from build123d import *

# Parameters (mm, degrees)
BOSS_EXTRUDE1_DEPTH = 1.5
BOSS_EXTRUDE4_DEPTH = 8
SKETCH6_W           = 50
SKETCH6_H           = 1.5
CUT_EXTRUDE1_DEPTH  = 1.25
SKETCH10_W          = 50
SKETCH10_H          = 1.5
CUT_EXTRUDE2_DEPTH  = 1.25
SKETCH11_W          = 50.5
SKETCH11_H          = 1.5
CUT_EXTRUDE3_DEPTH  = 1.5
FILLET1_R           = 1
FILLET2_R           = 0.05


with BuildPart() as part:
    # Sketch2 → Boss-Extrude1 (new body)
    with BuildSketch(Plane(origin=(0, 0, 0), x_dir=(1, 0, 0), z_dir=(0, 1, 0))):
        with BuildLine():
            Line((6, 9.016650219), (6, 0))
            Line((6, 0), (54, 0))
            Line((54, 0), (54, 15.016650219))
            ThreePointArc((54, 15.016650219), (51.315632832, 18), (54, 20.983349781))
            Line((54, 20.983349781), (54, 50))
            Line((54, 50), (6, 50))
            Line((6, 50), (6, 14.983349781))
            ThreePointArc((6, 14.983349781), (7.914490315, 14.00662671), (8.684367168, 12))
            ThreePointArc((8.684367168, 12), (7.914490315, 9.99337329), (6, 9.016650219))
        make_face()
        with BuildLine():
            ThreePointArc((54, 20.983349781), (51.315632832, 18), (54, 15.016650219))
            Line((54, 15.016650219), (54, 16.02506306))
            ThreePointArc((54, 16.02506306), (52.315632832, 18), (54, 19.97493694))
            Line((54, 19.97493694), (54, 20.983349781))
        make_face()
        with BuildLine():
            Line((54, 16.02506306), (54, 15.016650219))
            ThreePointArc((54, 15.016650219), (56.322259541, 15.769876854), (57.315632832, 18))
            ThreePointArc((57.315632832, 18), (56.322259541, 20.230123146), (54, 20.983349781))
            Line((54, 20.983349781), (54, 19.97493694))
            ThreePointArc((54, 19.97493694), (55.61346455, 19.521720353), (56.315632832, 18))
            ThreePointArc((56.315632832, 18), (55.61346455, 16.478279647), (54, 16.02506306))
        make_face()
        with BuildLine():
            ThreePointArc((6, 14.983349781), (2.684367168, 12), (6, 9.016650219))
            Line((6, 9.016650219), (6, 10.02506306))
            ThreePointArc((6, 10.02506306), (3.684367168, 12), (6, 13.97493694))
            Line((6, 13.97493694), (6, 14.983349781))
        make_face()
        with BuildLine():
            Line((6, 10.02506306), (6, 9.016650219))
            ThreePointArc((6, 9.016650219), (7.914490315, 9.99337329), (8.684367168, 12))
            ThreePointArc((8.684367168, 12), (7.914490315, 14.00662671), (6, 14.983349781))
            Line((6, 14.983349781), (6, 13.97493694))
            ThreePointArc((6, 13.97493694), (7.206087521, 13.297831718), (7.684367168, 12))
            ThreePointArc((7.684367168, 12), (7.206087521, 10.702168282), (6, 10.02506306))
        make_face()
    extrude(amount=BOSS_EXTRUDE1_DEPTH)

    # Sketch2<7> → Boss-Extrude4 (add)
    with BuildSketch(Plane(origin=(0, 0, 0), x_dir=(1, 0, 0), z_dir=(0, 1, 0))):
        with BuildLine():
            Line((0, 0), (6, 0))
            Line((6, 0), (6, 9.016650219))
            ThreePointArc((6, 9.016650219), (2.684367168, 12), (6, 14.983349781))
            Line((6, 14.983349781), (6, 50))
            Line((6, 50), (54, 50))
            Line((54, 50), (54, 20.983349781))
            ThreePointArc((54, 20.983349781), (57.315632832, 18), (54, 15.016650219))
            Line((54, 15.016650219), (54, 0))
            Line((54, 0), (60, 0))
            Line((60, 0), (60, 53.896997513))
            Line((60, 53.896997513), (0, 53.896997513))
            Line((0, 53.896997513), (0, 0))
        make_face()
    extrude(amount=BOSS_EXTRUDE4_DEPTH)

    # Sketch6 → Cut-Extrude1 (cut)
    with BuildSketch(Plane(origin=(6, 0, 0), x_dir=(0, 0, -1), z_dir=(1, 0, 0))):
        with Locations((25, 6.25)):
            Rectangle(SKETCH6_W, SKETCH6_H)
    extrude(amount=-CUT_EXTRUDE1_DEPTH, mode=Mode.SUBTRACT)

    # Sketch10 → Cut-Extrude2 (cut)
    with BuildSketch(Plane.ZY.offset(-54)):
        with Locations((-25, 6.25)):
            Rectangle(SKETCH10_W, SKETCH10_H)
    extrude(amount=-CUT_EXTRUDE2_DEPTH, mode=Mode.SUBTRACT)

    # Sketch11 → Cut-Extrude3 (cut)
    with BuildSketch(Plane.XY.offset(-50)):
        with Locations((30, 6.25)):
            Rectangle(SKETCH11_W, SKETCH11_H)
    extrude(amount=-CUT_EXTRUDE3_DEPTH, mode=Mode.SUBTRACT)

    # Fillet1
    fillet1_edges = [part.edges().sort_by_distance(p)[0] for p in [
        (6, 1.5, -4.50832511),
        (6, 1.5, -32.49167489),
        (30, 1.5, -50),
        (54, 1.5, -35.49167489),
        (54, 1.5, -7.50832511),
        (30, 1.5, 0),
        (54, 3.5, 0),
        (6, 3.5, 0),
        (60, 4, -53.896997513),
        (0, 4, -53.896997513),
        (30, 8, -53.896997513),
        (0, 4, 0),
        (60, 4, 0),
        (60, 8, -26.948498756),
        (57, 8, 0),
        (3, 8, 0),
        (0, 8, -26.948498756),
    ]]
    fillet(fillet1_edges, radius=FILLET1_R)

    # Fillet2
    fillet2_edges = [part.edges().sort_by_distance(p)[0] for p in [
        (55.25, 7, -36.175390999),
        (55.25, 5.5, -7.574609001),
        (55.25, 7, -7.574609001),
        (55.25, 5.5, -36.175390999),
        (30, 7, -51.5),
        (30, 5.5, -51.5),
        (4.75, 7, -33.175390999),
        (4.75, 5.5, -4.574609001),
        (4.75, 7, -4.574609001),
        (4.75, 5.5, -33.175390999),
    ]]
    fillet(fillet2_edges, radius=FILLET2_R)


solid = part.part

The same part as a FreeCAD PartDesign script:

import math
import FreeCAD as App
import Part
import Sketcher
from FreeCAD import Vector
Q = App.Units.Quantity


def edges_at(feature, points):
    """Names of the edges that pass closest to the given points."""
    edges = feature.Shape.Edges
    near = lambda p: min(range(len(edges)), key=lambda i: edges[i].distToShape(Part.Vertex(*p))[0])
    return sorted({f"Edge{near(p) + 1}" for p in points})


def add_polygon(sketch, points):
    """Adds a closed chain of lines whose ends are joined by coincident constraints."""
    first, n = sketch.GeometryCount, len(points)
    for a, b in zip(points, points[1:] + points[:1]):
        sketch.addGeometry(Part.LineSegment(App.Vector(*a, 0), App.Vector(*b, 0)), False)
    for i in range(n):
        sketch.addConstraint(Sketcher.Constraint("Coincident", first + i, 2, first + (i + 1) % n, 1))

doc = App.newDocument("Part")
body = doc.addObject("PartDesign::Body", "Body")

sketch1 = doc.addObject("Sketcher::SketchObject", "Sketch")
body.addObject(sketch1)
sketch1.AttachmentSupport = (doc.XZ_Plane, [""])
sketch1.MapMode = "FlatFace"
sketch1.addGeometry([
    Part.ArcOfCircle(Part.Circle(Vector(5.7, -12, 0), Vector(0, 0, 1), 3), math.radians(84), math.radians(276)),
    Part.LineSegment(Vector(6, -9, 0), Vector(6, 0, 0)),
    Part.LineSegment(Vector(6, 0, 0), Vector(54, 0, 0)),
    Part.LineSegment(Vector(54, 0, 0), Vector(54, -15, 0)),
    Part.ArcOfCircle(Part.Circle(Vector(54.3, -18, 0), Vector(0, 0, 1), 3), math.radians(0), math.radians(96)),
    Part.ArcOfCircle(Part.Circle(Vector(54.3, -18, 0), Vector(0, 0, 1), 3), math.radians(-96), math.radians(0)),
    Part.LineSegment(Vector(54, -21, 0), Vector(54, -50, 0)),
    Part.LineSegment(Vector(54, -50, 0), Vector(6, -50, 0)),
    Part.LineSegment(Vector(6, -50, 0), Vector(6, -15, 0)),
    Part.ArcOfCircle(Part.Circle(Vector(5.7, -12, 0), Vector(0, 0, 1), 2), math.radians(-81), math.radians(0)),
    Part.ArcOfCircle(Part.Circle(Vector(5.7, -12, 0), Vector(0, 0, 1), 2), math.radians(0), math.radians(81)),
    Part.ArcOfCircle(Part.Circle(Vector(5.7, -12, 0), Vector(0, 0, 1), 2), math.radians(81), math.radians(279)),
    Part.ArcOfCircle(Part.Circle(Vector(54.3, -18, 0), Vector(0, 0, 1), 2), math.radians(0), math.radians(99)),
    Part.ArcOfCircle(Part.Circle(Vector(54.3, -18, 0), Vector(0, 0, 1), 2), math.radians(99), math.radians(261)),
    Part.ArcOfCircle(Part.Circle(Vector(54.3, -18, 0), Vector(0, 0, 1), 2), math.radians(-99), math.radians(0)),
], False)
sketch1.addConstraint([
    Sketcher.Constraint("Coincident", 0, 1, 1, 1),
    Sketcher.Constraint("Coincident", 1, 2, 2, 1),
    Sketcher.Constraint("Coincident", 2, 2, 3, 1),
    Sketcher.Constraint("Coincident", 3, 2, 4, 2),
    Sketcher.Constraint("Tangent", 4, 1, 5, 2),
    Sketcher.Constraint("Coincident", 5, 1, 6, 1),
    Sketcher.Constraint("Coincident", 6, 2, 7, 1),
    Sketcher.Constraint("Coincident", 7, 2, 8, 1),
    Sketcher.Constraint("Coincident", 8, 2, 0, 2),
    Sketcher.Constraint("Tangent", 9, 2, 10, 1),
    Sketcher.Constraint("Tangent", 10, 2, 11, 1),
    Sketcher.Constraint("Tangent", 11, 2, 9, 1),
    Sketcher.Constraint("Tangent", 12, 2, 13, 1),
    Sketcher.Constraint("Tangent", 13, 2, 14, 1),
    Sketcher.Constraint("Tangent", 14, 2, 12, 1),
    Sketcher.Constraint("Vertical", 1),
    Sketcher.Constraint("Horizontal", 2),
    Sketcher.Constraint("Vertical", 3),
    Sketcher.Constraint("Vertical", 6),
    Sketcher.Constraint("Horizontal", 7),
    Sketcher.Constraint("Vertical", 8),
    Sketcher.Constraint("Coincident", 9, 3, 0, 3),
    Sketcher.Constraint("Coincident", 12, 3, 4, 3),
    Sketcher.Constraint("Equal", 0, 4),
    Sketcher.Constraint("Equal", 4, 5),
    Sketcher.Constraint("Equal", 11, 12),
    Sketcher.Constraint("PointOnObject", 1, 2, -1),
    Sketcher.Constraint("Horizontal", 14, 3, 4, 1),
    Sketcher.Constraint("Horizontal", 11, 3, 9, 2),
    Sketcher.Constraint("Horizontal", 4, 1, 14, 2),
    Sketcher.Constraint("Vertical", 3, 2, 5, 1),
    Sketcher.Constraint("Vertical", 1, 2, 7, 2),
    Sketcher.Constraint("Vertical", 8, 2, 10, 2),
    Sketcher.Constraint("Vertical", 10, 2, 11, 2),
    Sketcher.Constraint("Vertical", 6, 2, 12, 2),
    Sketcher.Constraint("Vertical", 12, 2, 13, 2),
    Sketcher.Constraint("Radius", 0, Q("3 mm")),
    Sketcher.Constraint("Radius", 9, Q("2 mm")),
    Sketcher.Constraint("DistanceX", 2, 1, 2, 2, Q("48 mm")),
    Sketcher.Constraint("DistanceY", 0, 3, -1, 1, Q("12 mm")),
    Sketcher.Constraint("DistanceY", 4, 3, -1, 1, Q("18 mm")),
    Sketcher.Constraint("DistanceX", -1, 1, 0, 1, Q("6 mm")),
    Sketcher.Constraint("DistanceY", 6, 2, -1, 1, Q("50 mm")),
    Sketcher.Constraint("DistanceY", 1, 1, 1, 2, Q("9.01665 mm")),
    Sketcher.Constraint("DistanceY", 3, 2, 3, 1, Q("15.01665 mm")),
])
pad1 = doc.addObject("PartDesign::Pad", "Pad")
body.addObject(pad1)
pad1.Profile = sketch1
pad1.Length = 1.5
pad1.Reversed = True

sketch2 = doc.addObject("Sketcher::SketchObject", "Sketch001")
body.addObject(sketch2)
sketch2.AttachmentSupport = (doc.XZ_Plane, [""])
sketch2.MapMode = "FlatFace"
sketch2.addGeometry([
    Part.LineSegment(Vector(0, 0, 0), Vector(6, 0, 0)),
    Part.LineSegment(Vector(6, 0, 0), Vector(6, -9, 0)),
    Part.ArcOfCircle(Part.Circle(Vector(5.7, -12, 0), Vector(0, 0, 1), 3), math.radians(84), math.radians(276)),
    Part.LineSegment(Vector(6, -15, 0), Vector(6, -50, 0)),
    Part.LineSegment(Vector(6, -50, 0), Vector(54, -50, 0)),
    Part.LineSegment(Vector(54, -50, 0), Vector(54, -21, 0)),
    Part.ArcOfCircle(Part.Circle(Vector(54.3, -18, 0), Vector(0, 0, 1), 3), math.radians(-96), math.radians(96)),
    Part.LineSegment(Vector(54, -15, 0), Vector(54, 0, 0)),
    Part.LineSegment(Vector(54, 0, 0), Vector(60, 0, 0)),
    Part.LineSegment(Vector(60, 0, 0), Vector(60, -53.9, 0)),
    Part.LineSegment(Vector(60, -53.9, 0), Vector(0, -53.9, 0)),
    Part.LineSegment(Vector(0, -53.9, 0), Vector(0, 0, 0)),
], False)
sketch2.addConstraint([
    Sketcher.Constraint("Coincident", 0, 2, 1, 1),
    Sketcher.Constraint("Coincident", 1, 2, 2, 1),
    Sketcher.Constraint("Coincident", 2, 2, 3, 1),
    Sketcher.Constraint("Coincident", 3, 2, 4, 1),
    Sketcher.Constraint("Coincident", 4, 2, 5, 1),
    Sketcher.Constraint("Coincident", 5, 2, 6, 1),
    Sketcher.Constraint("Coincident", 6, 2, 7, 1),
    Sketcher.Constraint("Coincident", 7, 2, 8, 1),
    Sketcher.Constraint("Coincident", 8, 2, 9, 1),
    Sketcher.Constraint("Coincident", 9, 2, 10, 1),
    Sketcher.Constraint("Coincident", 10, 2, 11, 1),
    Sketcher.Constraint("Coincident", 11, 2, 0, 1),
    Sketcher.Constraint("Horizontal", 0),
    Sketcher.Constraint("Vertical", 1),
    Sketcher.Constraint("Vertical", 3),
    Sketcher.Constraint("Horizontal", 4),
    Sketcher.Constraint("Vertical", 5),
    Sketcher.Constraint("Vertical", 7),
    Sketcher.Constraint("Horizontal", 8),
    Sketcher.Constraint("Vertical", 9),
    Sketcher.Constraint("Horizontal", 10),
    Sketcher.Constraint("Vertical", 11),
    Sketcher.Constraint("Coincident", 11, 2, -1, 1),
    Sketcher.Constraint("Equal", 2, 6),
    Sketcher.Constraint("PointOnObject", 7, 2, -1),
    Sketcher.Constraint("Vertical", 1, 2, 2, 2),
    Sketcher.Constraint("Vertical", 5, 2, 6, 2),
    Sketcher.Constraint("Equal", 0, 8),
    Sketcher.Constraint("Radius", 2, Q("3 mm")),
    Sketcher.Constraint("DistanceX", 0, 1, 0, 2, Q("6 mm")),
    Sketcher.Constraint("DistanceX", 4, 1, 4, 2, Q("48 mm")),
    Sketcher.Constraint("DistanceY", 2, 3, -1, 1, Q("12 mm")),
    Sketcher.Constraint("DistanceY", 6, 3, -1, 1, Q("18 mm")),
    Sketcher.Constraint("DistanceY", 3, 2, -1, 1, Q("50 mm")),
    Sketcher.Constraint("DistanceY", 5, 2, 2, 2, Q("6 mm")),
    Sketcher.Constraint("DistanceY", 1, 2, 1, 1, Q("9.01665 mm")),
    Sketcher.Constraint("DistanceY", 9, 2, 9, 1, Q("53.896998 mm")),
])
pad2 = doc.addObject("PartDesign::Pad", "Pad001")
body.addObject(pad2)
pad2.Profile = sketch2
pad2.Length = 8
pad2.Reversed = True

sketch3 = doc.addObject("Sketcher::SketchObject", "Sketch002")
body.addObject(sketch3)
sketch3.AttachmentSupport = (doc.YZ_Plane, [""])
sketch3.MapMode = "FlatFace"
sketch3.AttachmentOffset = App.Placement(Vector(0, 0, 6), App.Rotation())
add_polygon(sketch3, [(7, 0), (5.5, 0), (5.5, -50), (7, -50)])
sketch3.addConstraint([
    Sketcher.Constraint("Horizontal", 0),
    Sketcher.Constraint("Vertical", 1),
    Sketcher.Constraint("Horizontal", 2),
    Sketcher.Constraint("Vertical", 3),
    Sketcher.Constraint("PointOnObject", 0, 2, -1),
    Sketcher.Constraint("DistanceY", 1, 2, 1, 1, Q("50 mm")),
    Sketcher.Constraint("DistanceX", 0, 2, 0, 1, Q("1.5 mm")),
    Sketcher.Constraint("DistanceX", -1, 1, 2, 2, Q("7 mm")),
])
pocket1 = doc.addObject("PartDesign::Pocket", "Pocket")
body.addObject(pocket1)
pocket1.Profile = sketch3
pocket1.Length = 1.25

sketch4 = doc.addObject("Sketcher::SketchObject", "Sketch003")
body.addObject(sketch4)
sketch4.AttachmentSupport = (doc.YZ_Plane, [""])
sketch4.MapMode = "FlatFace"
sketch4.AttachmentOffset = App.Placement(Vector(0, 0, 54), App.Rotation())
add_polygon(sketch4, [(7, -50), (5.5, -50), (5.5, 0), (7, 0)])
sketch4.addConstraint([
    Sketcher.Constraint("Horizontal", 0),
    Sketcher.Constraint("Vertical", 1),
    Sketcher.Constraint("Horizontal", 2),
    Sketcher.Constraint("Vertical", 3),
    Sketcher.Constraint("PointOnObject", 1, 2, -1),
    Sketcher.Constraint("DistanceY", 1, 1, 1, 2, Q("50 mm")),
    Sketcher.Constraint("DistanceX", 0, 2, 0, 1, Q("1.5 mm")),
    Sketcher.Constraint("DistanceX", -1, 1, 2, 2, Q("7 mm")),
])
pocket2 = doc.addObject("PartDesign::Pocket", "Pocket001")
body.addObject(pocket2)
pocket2.Profile = sketch4
pocket2.Length = 1.25
pocket2.Reversed = True

sketch5 = doc.addObject("Sketcher::SketchObject", "Sketch004")
body.addObject(sketch5)
sketch5.AttachmentSupport = (doc.XY_Plane, [""])
sketch5.MapMode = "FlatFace"
sketch5.AttachmentOffset = App.Placement(Vector(0, 0, -50), App.Rotation())
add_polygon(sketch5, [(4.8, 7), (4.8, 5.5), (55.2, 5.5), (55.2, 7)])
sketch5.addConstraint([
    Sketcher.Constraint("Vertical", 0),
    Sketcher.Constraint("Horizontal", 1),
    Sketcher.Constraint("Vertical", 2),
    Sketcher.Constraint("Horizontal", 3),
    Sketcher.Constraint("DistanceX", 1, 1, 1, 2, Q("50.5 mm")),
    Sketcher.Constraint("DistanceY", 0, 2, 0, 1, Q("1.5 mm")),
    Sketcher.Constraint("DistanceY", -1, 1, 2, 2, Q("7 mm")),
    Sketcher.Constraint("DistanceX", -1, 1, 0, 2, Q("4.75 mm")),
])
pocket3 = doc.addObject("PartDesign::Pocket", "Pocket002")
body.addObject(pocket3)
pocket3.Profile = sketch5
pocket3.Length = 1.5
doc.recompute()

fillet = doc.addObject("PartDesign::Fillet", "Fillet")
body.addObject(fillet)
fillet.Base = (pocket3, edges_at(pocket3, [
    (6, 1.5, -4.508),
    (6, 1.5, -32.492),
    (30, 1.5, -50),
    (54, 1.5, -35.492),
    (54, 1.5, -7.508),
    (30, 1.5, 0),
    (54, 3.5, 0),
    (6, 3.5, 0),
    (60, 4, -53.897),
    (0, 4, -53.897),
    (30, 8, -53.897),
    (0, 4, 0),
    (60, 4, 0),
    (60, 8, -26.948),
    (57, 8, 0),
    (3, 8, 0),
    (0, 8, -26.948),
]))
fillet.Radius = 1
doc.recompute()

fillet2 = doc.addObject("PartDesign::Fillet", "Fillet001")
body.addObject(fillet2)
fillet2.Base = (fillet, edges_at(fillet, [
    (55.25, 7, -36.175),
    (55.25, 5.5, -7.575),
    (55.25, 7, -7.575),
    (55.25, 5.5, -36.175),
    (30, 7, -51.5),
    (30, 5.5, -51.5),
    (4.75, 7, -33.175),
    (4.75, 5.5, -4.575),
    (4.75, 7, -4.575),
    (4.75, 5.5, -33.175),
]))
fillet2.Radius = 0.05

doc.recompute()
